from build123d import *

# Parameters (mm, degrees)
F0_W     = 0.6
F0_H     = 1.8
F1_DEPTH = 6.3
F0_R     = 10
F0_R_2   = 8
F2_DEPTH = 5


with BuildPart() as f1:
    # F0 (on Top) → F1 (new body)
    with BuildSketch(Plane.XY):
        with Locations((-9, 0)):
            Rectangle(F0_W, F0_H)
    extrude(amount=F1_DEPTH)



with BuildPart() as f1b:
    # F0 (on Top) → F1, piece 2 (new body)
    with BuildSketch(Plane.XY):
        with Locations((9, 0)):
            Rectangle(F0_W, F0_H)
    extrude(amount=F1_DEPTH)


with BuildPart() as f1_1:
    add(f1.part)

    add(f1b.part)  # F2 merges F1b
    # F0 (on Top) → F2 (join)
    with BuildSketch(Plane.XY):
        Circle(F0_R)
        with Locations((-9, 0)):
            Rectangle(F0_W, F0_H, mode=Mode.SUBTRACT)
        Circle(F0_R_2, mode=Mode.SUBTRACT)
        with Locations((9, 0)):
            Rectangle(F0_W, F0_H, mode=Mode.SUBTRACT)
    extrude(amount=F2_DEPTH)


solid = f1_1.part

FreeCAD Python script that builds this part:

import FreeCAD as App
import Part
import Sketcher
from FreeCAD import Vector

doc = App.newDocument("Part")
params = doc.addObject("Spreadsheet::Sheet", "Params")
for row, (alias, value) in enumerate([
    ("sketch1_width", "0.6 mm"),
    ("sketch1_height", "1.8 mm"),
    ("pad1_length", "6.3 mm"),
    ("sketch2_width", "0.6 mm"),
    ("sketch2_height", "1.8 mm"),
    ("pad2_length", "6.3 mm"),
    ("sketch3_diameter", "20 mm"),
    ("sketch3_diameter2", "16 mm"),
    ("sketch3_width", "0.6 mm"),
    ("sketch3_height", "1.8 mm"),
    ("pad3_length", "5 mm"),
], start=1):
    params.set(f"A{row}", alias)
    params.set(f"B{row}", "=" + value)
    params.setAlias(f"B{row}", alias)

body = doc.addObject("PartDesign::Body", "Body")

# Sketch on XY plane
sketch1 = doc.addObject("Sketcher::SketchObject", "Sketch")
body.addObject(sketch1)
sketch1.AttachmentSupport = (doc.XY_Plane, [""])
sketch1.MapMode = "FlatFace"
sketch1.addGeometry(Part.LineSegment(Vector(-9.3, 0.9, 0), Vector(-9.3, -0.9, 0)), False)
sketch1.addGeometry(Part.LineSegment(Vector(-9.3, -0.9, 0), Vector(-8.7, -0.9, 0)), False)
sketch1.addGeometry(Part.LineSegment(Vector(-8.7, -0.9, 0), Vector(-8.7, 0.9, 0)), False)
sketch1.addGeometry(Part.LineSegment(Vector(-8.7, 0.9, 0), Vector(-9.3, 0.9, 0)), False)
sketch1.addConstraint(Sketcher.Constraint("Coincident", 0, 2, 1, 1))
sketch1.addConstraint(Sketcher.Constraint("Coincident", 1, 2, 2, 1))
sketch1.addConstraint(Sketcher.Constraint("Coincident", 2, 2, 3, 1))
sketch1.addConstraint(Sketcher.Constraint("Coincident", 3, 2, 0, 1))
sketch1.addConstraint(Sketcher.Constraint("Vertical", 0))
sketch1.addConstraint(Sketcher.Constraint("Horizontal", 1))
sketch1.addConstraint(Sketcher.Constraint("Vertical", 2))
sketch1.addConstraint(Sketcher.Constraint("Horizontal", 3))
sketch1.addConstraint(Sketcher.Constraint("DistanceX", 1, 1, 1, 2, 0.6))
sketch1.addConstraint(Sketcher.Constraint("DistanceY", 0, 2, 0, 1, 1.8))
sketch1.addConstraint(Sketcher.Constraint("DistanceX", 0, 2, -1, 1, 9.3))
sketch1.addConstraint(Sketcher.Constraint("DistanceY", 0, 2, -1, 1, 0.9))
sketch1.setExpression("Constraints[8]", "Params.sketch1_width")
sketch1.setExpression("Constraints[9]", "Params.sketch1_height")
pad1 = doc.addObject("PartDesign::Pad", "Pad")
body.addObject(pad1)
pad1.Profile = sketch1
pad1.setExpression("Length", "Params.pad1_length")
body2 = doc.addObject("PartDesign::Body", "Body001")

# Sketch on XY plane
sketch2 = doc.addObject("Sketcher::SketchObject", "Sketch001")
body2.addObject(sketch2)
sketch2.AttachmentSupport = (doc.getObject("XY_Plane001"), [""])
sketch2.MapMode = "FlatFace"
sketch2.addGeometry(Part.LineSegment(Vector(8.7, 0.9, 0), Vector(8.7, -0.9, 0)), False)
sketch2.addGeometry(Part.LineSegment(Vector(8.7, -0.9, 0), Vector(9.3, -0.9, 0)), False)
sketch2.addGeometry(Part.LineSegment(Vector(9.3, -0.9, 0), Vector(9.3, 0.9, 0)), False)
sketch2.addGeometry(Part.LineSegment(Vector(9.3, 0.9, 0), Vector(8.7, 0.9, 0)), False)
sketch2.addConstraint(Sketcher.Constraint("Coincident", 0, 2, 1, 1))
sketch2.addConstraint(Sketcher.Constraint("Coincident", 1, 2, 2, 1))
sketch2.addConstraint(Sketcher.Constraint("Coincident", 2, 2, 3, 1))
sketch2.addConstraint(Sketcher.Constraint("Coincident", 3, 2, 0, 1))
sketch2.addConstraint(Sketcher.Constraint("Vertical", 0))
sketch2.addConstraint(Sketcher.Constraint("Horizontal", 1))
sketch2.addConstraint(Sketcher.Constraint("Vertical", 2))
sketch2.addConstraint(Sketcher.Constraint("Horizontal", 3))
sketch2.addConstraint(Sketcher.Constraint("DistanceX", 1, 1, 1, 2, 0.6))
sketch2.addConstraint(Sketcher.Constraint("DistanceY", 0, 2, 0, 1, 1.8))
sketch2.addConstraint(Sketcher.Constraint("DistanceX", -1, 1, 0, 2, 8.7))
sketch2.addConstraint(Sketcher.Constraint("DistanceY", 0, 2, -1, 1, 0.9))
sketch2.setExpression("Constraints[8]", "Params.sketch2_width")
sketch2.setExpression("Constraints[9]", "Params.sketch2_height")
pad2 = doc.addObject("PartDesign::Pad", "Pad001")
body2.addObject(pad2)
pad2.Profile = sketch2
pad2.setExpression("Length", "Params.pad2_length")
body.AllowCompound = True
doc.recompute()

boolean = doc.addObject("PartDesign::Boolean", "Boolean")
body.addObject(boolean)
boolean.Type = "Fuse"
boolean.addObjects([body2])

# Sketch on XY plane
sketch3 = doc.addObject("Sketcher::SketchObject", "Sketch002")
body.addObject(sketch3)
sketch3.AttachmentSupport = (doc.XY_Plane, [""])
sketch3.MapMode = "FlatFace"
sketch3.addGeometry(Part.Circle(Vector(0, 0, 0), Vector(0, 0, 1), 10), False)
sketch3.addGeometry(Part.LineSegment(Vector(-8.7, -0.9, 0), Vector(-9.3, -0.9, 0)), False)
sketch3.addGeometry(Part.LineSegment(Vector(-9.3, -0.9, 0), Vector(-9.3, 0.9, 0)), False)
sketch3.addGeometry(Part.LineSegment(Vector(-9.3, 0.9, 0), Vector(-8.7, 0.9, 0)), False)
sketch3.addGeometry(Part.LineSegment(Vector(-8.7, 0.9, 0), Vector(-8.7, -0.9, 0)), False)
sketch3.addGeometry(Part.LineSegment(Vector(9.3, -0.9, 0), Vector(8.7, -0.9, 0)), False)
sketch3.addGeometry(Part.LineSegment(Vector(8.7, -0.9, 0), Vector(8.7, 0.9, 0)), False)
sketch3.addGeometry(Part.LineSegment(Vector(8.7, 0.9, 0), Vector(9.3, 0.9, 0)), False)
sketch3.addGeometry(Part.LineSegment(Vector(9.3, 0.9, 0), Vector(9.3, -0.9, 0)), False)
sketch3.addGeometry(Part.Circle(Vector(0, 0, 0), Vector(0, 0, 1), 8), False)
sketch3.addConstraint(Sketcher.Constraint("Coincident", 1, 2, 2, 1))
sketch3.addConstraint(Sketcher.Constraint("Coincident", 2, 2, 3, 1))
sketch3.addConstraint(Sketcher.Constraint("Coincident", 3, 2, 4, 1))
sketch3.addConstraint(Sketcher.Constraint("Coincident", 4, 2, 1, 1))
sketch3.addConstraint(Sketcher.Constraint("Coincident", 5, 2, 6, 1))
sketch3.addConstraint(Sketcher.Constraint("Coincident", 6, 2, 7, 1))
sketch3.addConstraint(Sketcher.Constraint("Coincident", 7, 2, 8, 1))
sketch3.addConstraint(Sketcher.Constraint("Coincident", 8, 2, 5, 1))
sketch3.addConstraint(Sketcher.Constraint("Horizontal", 1))
sketch3.addConstraint(Sketcher.Constraint("Vertical", 2))
sketch3.addConstraint(Sketcher.Constraint("Horizontal", 3))
sketch3.addConstraint(Sketcher.Constraint("Vertical", 4))
sketch3.addConstraint(Sketcher.Constraint("Horizontal", 5))
sketch3.addConstraint(Sketcher.Constraint("Vertical", 6))
sketch3.addConstraint(Sketcher.Constraint("Horizontal", 7))
sketch3.addConstraint(Sketcher.Constraint("Vertical", 8))
sketch3.addConstraint(Sketcher.Constraint("Coincident", 0, 3, -1, 1))
sketch3.addConstraint(Sketcher.Constraint("Coincident", 9, 3, -1, 1))
sketch3.addConstraint(Sketcher.Constraint("Symmetric", 3, 2, 5, 2, -1, 1))
sketch3.addConstraint(Sketcher.Constraint("Symmetric", 1, 2, 7, 2, -1, 1))
sketch3.addConstraint(Sketcher.Constraint("Horizontal", 4, 2, 5, 2))
sketch3.addConstraint(Sketcher.Constraint("Diameter", 0, 20.0))
sketch3.addConstraint(Sketcher.Constraint("Diameter", 9, 16.0))
sketch3.addConstraint(Sketcher.Constraint("DistanceX", 1, 2, 1, 1, 0.6))
sketch3.addConstraint(Sketcher.Constraint("DistanceY", 2, 1, 2, 2, 1.8))
sketch3.addConstraint(Sketcher.Constraint("DistanceX", 1, 2, 5, 2, 18.0))
sketch3.setExpression("Constraints[21]", "Params.sketch3_diameter")
sketch3.setExpression("Constraints[22]", "Params.sketch3_diameter2")
sketch3.setExpression("Constraints[23]", "Params.sketch3_width")
sketch3.setExpression("Constraints[24]", "Params.sketch3_height")
pad3 = doc.addObject("PartDesign::Pad", "Pad002")
body.addObject(pad3)
pad3.Profile = sketch3
pad3.setExpression("Length", "Params.pad3_length")

doc.recompute()
